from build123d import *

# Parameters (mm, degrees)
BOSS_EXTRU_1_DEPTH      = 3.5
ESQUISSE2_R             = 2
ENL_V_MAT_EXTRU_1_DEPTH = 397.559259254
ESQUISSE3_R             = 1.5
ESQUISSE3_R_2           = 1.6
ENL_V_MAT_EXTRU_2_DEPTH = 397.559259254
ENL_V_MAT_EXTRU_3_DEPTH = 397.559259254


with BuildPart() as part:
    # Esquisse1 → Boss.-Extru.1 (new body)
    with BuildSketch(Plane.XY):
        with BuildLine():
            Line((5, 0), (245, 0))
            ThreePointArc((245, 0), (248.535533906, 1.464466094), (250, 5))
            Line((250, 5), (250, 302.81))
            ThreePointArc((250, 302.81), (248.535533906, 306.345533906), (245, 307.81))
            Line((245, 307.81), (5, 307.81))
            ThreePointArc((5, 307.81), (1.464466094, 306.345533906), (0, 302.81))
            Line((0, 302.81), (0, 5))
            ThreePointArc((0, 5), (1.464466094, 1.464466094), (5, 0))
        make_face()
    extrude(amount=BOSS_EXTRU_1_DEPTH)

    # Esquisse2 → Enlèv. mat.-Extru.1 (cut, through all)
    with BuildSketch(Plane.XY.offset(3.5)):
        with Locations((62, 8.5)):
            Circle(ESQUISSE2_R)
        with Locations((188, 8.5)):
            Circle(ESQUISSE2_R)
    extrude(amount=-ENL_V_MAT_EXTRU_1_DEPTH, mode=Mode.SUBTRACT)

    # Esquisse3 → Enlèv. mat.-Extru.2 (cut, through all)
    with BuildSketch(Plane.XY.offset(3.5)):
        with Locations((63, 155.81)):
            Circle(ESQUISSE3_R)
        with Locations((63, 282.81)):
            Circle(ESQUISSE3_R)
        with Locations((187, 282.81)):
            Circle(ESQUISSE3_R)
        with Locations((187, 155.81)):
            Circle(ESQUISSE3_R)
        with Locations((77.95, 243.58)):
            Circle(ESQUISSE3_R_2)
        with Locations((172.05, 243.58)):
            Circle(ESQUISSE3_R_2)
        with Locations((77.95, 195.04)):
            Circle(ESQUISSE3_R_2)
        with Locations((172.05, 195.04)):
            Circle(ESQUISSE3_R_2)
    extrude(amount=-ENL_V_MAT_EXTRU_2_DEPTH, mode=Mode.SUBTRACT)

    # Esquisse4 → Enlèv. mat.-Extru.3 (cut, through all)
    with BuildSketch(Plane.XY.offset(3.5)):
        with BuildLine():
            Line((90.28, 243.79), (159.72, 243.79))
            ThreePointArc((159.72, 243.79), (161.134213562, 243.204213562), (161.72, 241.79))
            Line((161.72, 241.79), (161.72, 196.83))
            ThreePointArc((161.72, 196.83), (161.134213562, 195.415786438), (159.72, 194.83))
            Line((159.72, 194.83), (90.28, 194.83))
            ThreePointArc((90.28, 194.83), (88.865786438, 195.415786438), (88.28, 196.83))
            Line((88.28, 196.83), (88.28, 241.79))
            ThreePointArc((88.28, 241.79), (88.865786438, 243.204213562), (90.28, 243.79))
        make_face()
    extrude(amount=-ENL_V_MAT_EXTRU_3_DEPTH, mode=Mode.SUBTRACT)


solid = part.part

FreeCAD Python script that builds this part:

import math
import FreeCAD as App
import Part
import Sketcher

V = App.Vector

doc = App.newDocument("Part")
body = doc.addObject("PartDesign::Body", "Body")

# Sketch on XY plane
sketch1 = doc.addObject("Sketcher::SketchObject", "Sketch")
body.addObject(sketch1)
sketch1.AttachmentSupport = (doc.XY_Plane, [""])
sketch1.MapMode = "FlatFace"
sketch1.addGeometry([
    Part.LineSegment(V(5, 0, 0), V(245, 0, 0)),  # 0
    Part.ArcOfCircle(Part.Circle(V(245, 5, 0), V(0, 0, 1), 5), math.radians(-90), math.radians(0)),  # 1
    Part.LineSegment(V(250, 5, 0), V(250, 303, 0)),  # 2
    Part.ArcOfCircle(Part.Circle(V(245, 303, 0), V(0, 0, 1), 5), math.radians(0), math.radians(90)),  # 3
    Part.LineSegment(V(245, 308, 0), V(5, 308, 0)),  # 4
    Part.ArcOfCircle(Part.Circle(V(5, 303, 0), V(0, 0, 1), 5), math.radians(90), math.radians(180)),  # 5
    Part.LineSegment(V(0, 303, 0), V(0, 5, 0)),  # 6
    Part.ArcOfCircle(Part.Circle(V(5, 5, 0), V(0, 0, 1), 5), math.radians(180), math.radians(270)),  # 7
], False)
sketch1.addConstraint([
    Sketcher.Constraint("Tangent", 0, 2, 1, 1),
    Sketcher.Constraint("Tangent", 1, 2, 2, 1),
    Sketcher.Constraint("Tangent", 2, 2, 3, 1),
    Sketcher.Constraint("Tangent", 3, 2, 4, 1),
    Sketcher.Constraint("Tangent", 4, 2, 5, 1),
    Sketcher.Constraint("Tangent", 5, 2, 6, 1),
    Sketcher.Constraint("Tangent", 6, 2, 7, 1),
    Sketcher.Constraint("Tangent", 7, 2, 0, 1),
    Sketcher.Constraint("Horizontal", 0),
    Sketcher.Constraint("Vertical", 2),
    Sketcher.Constraint("Horizontal", 4),
    Sketcher.Constraint("Vertical", 6),
    Sketcher.Constraint("Equal", 1, 3),
    Sketcher.Constraint("Equal", 3, 5),
    Sketcher.Constraint("Equal", 5, 7),
    Sketcher.Constraint("PointOnObject", 0, 2, -1),
    Sketcher.Constraint("PointOnObject", 5, 2, -2),
    Sketcher.Constraint("Radius", 1, 5.0),
    Sketcher.Constraint("DistanceX", 0, 1, 0, 2, 240.0),
    Sketcher.Constraint("DistanceY", 2, 1, 2, 2, 297.81),
])
pad1 = doc.addObject("PartDesign::Pad", "Pad")
body.addObject(pad1)
pad1.Profile = sketch1
pad1.Length = 3.5

# Sketch on XY plane
sketch2 = doc.addObject("Sketcher::SketchObject", "Sketch001")
body.addObject(sketch2)
sketch2.AttachmentSupport = (doc.XY_Plane, [""])
sketch2.MapMode = "FlatFace"
sketch2.AttachmentOffset = App.Placement(V(0, 0, 3.5), App.Rotation())
sketch2.addGeometry([
    Part.Circle(V(62, 8.5, 0), V(0, 0, 1), 2),
    Part.Circle(V(188, 8.5, 0), V(0, 0, 1), 2),
], False)
sketch2.addConstraint([
    Sketcher.Constraint("Equal", 0, 1),
    Sketcher.Constraint("Horizontal", 0, 3, 1, 3),
    Sketcher.Constraint("Diameter", 0, 4.0),
    Sketcher.Constraint("DistanceX", -1, 1, 0, 3, 62.0),
    Sketcher.Constraint("DistanceX", -1, 1, 1, 3, 188.0),
    Sketcher.Constraint("DistanceY", -1, 1, 0, 3, 8.5),
])
pocket1 = doc.addObject("PartDesign::Pocket", "Pocket")
body.addObject(pocket1)
pocket1.Profile = sketch2
pocket1.Type = "ThroughAll"

# Sketch on XY plane
sketch3 = doc.addObject("Sketcher::SketchObject", "Sketch002")
body.addObject(sketch3)
sketch3.AttachmentSupport = (doc.XY_Plane, [""])
sketch3.MapMode = "FlatFace"
sketch3.AttachmentOffset = App.Placement(V(0, 0, 3.5), App.Rotation())
sketch3.addGeometry([
    Part.Circle(V(63, 155.8, 0), V(0, 0, 1), 1.5),  # 0
    Part.Circle(V(63, 282.8, 0), V(0, 0, 1), 1.5),  # 1
    Part.Circle(V(187, 282.8, 0), V(0, 0, 1), 1.5),  # 2
    Part.Circle(V(187, 155.8, 0), V(0, 0, 1), 1.5),  # 3
    Part.Circle(V(78, 243.6, 0), V(0, 0, 1), 1.6),  # 4
    Part.Circle(V(172.1, 243.6, 0), V(0, 0, 1), 1.6),  # 5
    Part.Circle(V(78, 195, 0), V(0, 0, 1), 1.6),  # 6
    Part.Circle(V(172.1, 195, 0), V(0, 0, 1), 1.6),  # 7
], False)
sketch3.addConstraint([
    Sketcher.Constraint("Equal", 0, 1),
    Sketcher.Constraint("Equal", 1, 2),
    Sketcher.Constraint("Equal", 2, 3),
    Sketcher.Constraint("Equal", 4, 5),
    Sketcher.Constraint("Equal", 5, 6),
    Sketcher.Constraint("Equal", 6, 7),
    Sketcher.Constraint("Horizontal", 1, 3, 2, 3),
    Sketcher.Constraint("Horizontal", 0, 3, 3, 3),
    Sketcher.Constraint("Horizontal", 4, 3, 5, 3),
    Sketcher.Constraint("Horizontal", 6, 3, 7, 3),
    Sketcher.Constraint("Vertical", 0, 3, 1, 3),
    Sketcher.Constraint("Vertical", 2, 3, 3, 3),
    Sketcher.Constraint("Vertical", 4, 3, 6, 3),
    Sketcher.Constraint("Vertical", 5, 3, 7, 3),
    Sketcher.Constraint("Diameter", 0, 3.0),
    Sketcher.Constraint("Diameter", 4, 3.2),
    Sketcher.Constraint("DistanceX", -1, 1, 0, 3, 63.0),
    Sketcher.Constraint("DistanceX", -1, 1, 2, 3, 187.0),
    Sketcher.Constraint("DistanceY", 0, 3, 1, 3, 127.0),
    Sketcher.Constraint("DistanceX", 4, 3, 5, 3, 94.1),
    Sketcher.Constraint("DistanceY", -1, 1, 0, 3, 155.81),
    Sketcher.Constraint("DistanceX", -1, 1, 4, 3, 77.95),
    Sketcher.Constraint("DistanceY", -1, 1, 4, 3, 243.58),
    Sketcher.Constraint("DistanceY", -1, 1, 6, 3, 195.04),
])
pocket2 = doc.addObject("PartDesign::Pocket", "Pocket001")
body.addObject(pocket2)
pocket2.Profile = sketch3
pocket2.Type = "ThroughAll"

# Sketch on XY plane
sketch4 = doc.addObject("Sketcher::SketchObject", "Sketch003")
body.addObject(sketch4)
sketch4.AttachmentSupport = (doc.XY_Plane, [""])
sketch4.MapMode = "FlatFace"
sketch4.AttachmentOffset = App.Placement(V(0, 0, 3.5), App.Rotation())
sketch4.addGeometry([
    Part.LineSegment(V(159.7, 243.8, 0), V(90.3, 243.8, 0)),  # 0
    Part.ArcOfCircle(Part.Circle(V(90.3, 241.8, 0), V(0, 0, 1), 2), math.radians(90), math.radians(180)),  # 1
    Part.LineSegment(V(88.3, 241.8, 0), V(88.3, 196.8, 0)),  # 2
    Part.ArcOfCircle(Part.Circle(V(90.3, 196.8, 0), V(0, 0, 1), 2), math.radians(-180), math.radians(-90)),  # 3
    Part.LineSegment(V(90.3, 194.8, 0), V(159.7, 194.8, 0)),  # 4
    Part.ArcOfCircle(Part.Circle(V(159.7, 196.8, 0), V(0, 0, 1), 2), math.radians(-90), math.radians(0)),  # 5
    Part.LineSegment(V(161.7, 196.8, 0), V(161.7, 241.8, 0)),  # 6
    Part.ArcOfCircle(Part.Circle(V(159.7, 241.8, 0), V(0, 0, 1), 2), math.radians(0), math.radians(90)),  # 7
], False)
sketch4.addConstraint([
    Sketcher.Constraint("Tangent", 0, 2, 1, 1),
    Sketcher.Constraint("Tangent", 1, 2, 2, 1),
    Sketcher.Constraint("Tangent", 2, 2, 3, 1),
    Sketcher.Constraint("Tangent", 3, 2, 4, 1),
    Sketcher.Constraint("Tangent", 4, 2, 5, 1),
    Sketcher.Constraint("Tangent", 5, 2, 6, 1),
    Sketcher.Constraint("Tangent", 6, 2, 7, 1),
    Sketcher.Constraint("Tangent", 7, 2, 0, 1),
    Sketcher.Constraint("Horizontal", 0),
    Sketcher.Constraint("Vertical", 2),
    Sketcher.Constraint("Horizontal", 4),
    Sketcher.Constraint("Vertical", 6),
    Sketcher.Constraint("Equal", 1, 3),
    Sketcher.Constraint("Equal", 3, 5),
    Sketcher.Constraint("Equal", 5, 7),
    Sketcher.Constraint("Radius", 1, 2.0),
    Sketcher.Constraint("DistanceX", 0, 2, 0, 1, 69.44),
    Sketcher.Constraint("DistanceY", 2, 2, 2, 1, 44.96),
    Sketcher.Constraint("DistanceX", -1, 1, 1, 3, 90.28),
    Sketcher.Constraint("DistanceY", -1, 1, 1, 3, 241.79),
])
pocket3 = doc.addObject("PartDesign::Pocket", "Pocket002")
body.addObject(pocket3)
pocket3.Profile = sketch4
pocket3.Type = "ThroughAll"

doc.recompute()
